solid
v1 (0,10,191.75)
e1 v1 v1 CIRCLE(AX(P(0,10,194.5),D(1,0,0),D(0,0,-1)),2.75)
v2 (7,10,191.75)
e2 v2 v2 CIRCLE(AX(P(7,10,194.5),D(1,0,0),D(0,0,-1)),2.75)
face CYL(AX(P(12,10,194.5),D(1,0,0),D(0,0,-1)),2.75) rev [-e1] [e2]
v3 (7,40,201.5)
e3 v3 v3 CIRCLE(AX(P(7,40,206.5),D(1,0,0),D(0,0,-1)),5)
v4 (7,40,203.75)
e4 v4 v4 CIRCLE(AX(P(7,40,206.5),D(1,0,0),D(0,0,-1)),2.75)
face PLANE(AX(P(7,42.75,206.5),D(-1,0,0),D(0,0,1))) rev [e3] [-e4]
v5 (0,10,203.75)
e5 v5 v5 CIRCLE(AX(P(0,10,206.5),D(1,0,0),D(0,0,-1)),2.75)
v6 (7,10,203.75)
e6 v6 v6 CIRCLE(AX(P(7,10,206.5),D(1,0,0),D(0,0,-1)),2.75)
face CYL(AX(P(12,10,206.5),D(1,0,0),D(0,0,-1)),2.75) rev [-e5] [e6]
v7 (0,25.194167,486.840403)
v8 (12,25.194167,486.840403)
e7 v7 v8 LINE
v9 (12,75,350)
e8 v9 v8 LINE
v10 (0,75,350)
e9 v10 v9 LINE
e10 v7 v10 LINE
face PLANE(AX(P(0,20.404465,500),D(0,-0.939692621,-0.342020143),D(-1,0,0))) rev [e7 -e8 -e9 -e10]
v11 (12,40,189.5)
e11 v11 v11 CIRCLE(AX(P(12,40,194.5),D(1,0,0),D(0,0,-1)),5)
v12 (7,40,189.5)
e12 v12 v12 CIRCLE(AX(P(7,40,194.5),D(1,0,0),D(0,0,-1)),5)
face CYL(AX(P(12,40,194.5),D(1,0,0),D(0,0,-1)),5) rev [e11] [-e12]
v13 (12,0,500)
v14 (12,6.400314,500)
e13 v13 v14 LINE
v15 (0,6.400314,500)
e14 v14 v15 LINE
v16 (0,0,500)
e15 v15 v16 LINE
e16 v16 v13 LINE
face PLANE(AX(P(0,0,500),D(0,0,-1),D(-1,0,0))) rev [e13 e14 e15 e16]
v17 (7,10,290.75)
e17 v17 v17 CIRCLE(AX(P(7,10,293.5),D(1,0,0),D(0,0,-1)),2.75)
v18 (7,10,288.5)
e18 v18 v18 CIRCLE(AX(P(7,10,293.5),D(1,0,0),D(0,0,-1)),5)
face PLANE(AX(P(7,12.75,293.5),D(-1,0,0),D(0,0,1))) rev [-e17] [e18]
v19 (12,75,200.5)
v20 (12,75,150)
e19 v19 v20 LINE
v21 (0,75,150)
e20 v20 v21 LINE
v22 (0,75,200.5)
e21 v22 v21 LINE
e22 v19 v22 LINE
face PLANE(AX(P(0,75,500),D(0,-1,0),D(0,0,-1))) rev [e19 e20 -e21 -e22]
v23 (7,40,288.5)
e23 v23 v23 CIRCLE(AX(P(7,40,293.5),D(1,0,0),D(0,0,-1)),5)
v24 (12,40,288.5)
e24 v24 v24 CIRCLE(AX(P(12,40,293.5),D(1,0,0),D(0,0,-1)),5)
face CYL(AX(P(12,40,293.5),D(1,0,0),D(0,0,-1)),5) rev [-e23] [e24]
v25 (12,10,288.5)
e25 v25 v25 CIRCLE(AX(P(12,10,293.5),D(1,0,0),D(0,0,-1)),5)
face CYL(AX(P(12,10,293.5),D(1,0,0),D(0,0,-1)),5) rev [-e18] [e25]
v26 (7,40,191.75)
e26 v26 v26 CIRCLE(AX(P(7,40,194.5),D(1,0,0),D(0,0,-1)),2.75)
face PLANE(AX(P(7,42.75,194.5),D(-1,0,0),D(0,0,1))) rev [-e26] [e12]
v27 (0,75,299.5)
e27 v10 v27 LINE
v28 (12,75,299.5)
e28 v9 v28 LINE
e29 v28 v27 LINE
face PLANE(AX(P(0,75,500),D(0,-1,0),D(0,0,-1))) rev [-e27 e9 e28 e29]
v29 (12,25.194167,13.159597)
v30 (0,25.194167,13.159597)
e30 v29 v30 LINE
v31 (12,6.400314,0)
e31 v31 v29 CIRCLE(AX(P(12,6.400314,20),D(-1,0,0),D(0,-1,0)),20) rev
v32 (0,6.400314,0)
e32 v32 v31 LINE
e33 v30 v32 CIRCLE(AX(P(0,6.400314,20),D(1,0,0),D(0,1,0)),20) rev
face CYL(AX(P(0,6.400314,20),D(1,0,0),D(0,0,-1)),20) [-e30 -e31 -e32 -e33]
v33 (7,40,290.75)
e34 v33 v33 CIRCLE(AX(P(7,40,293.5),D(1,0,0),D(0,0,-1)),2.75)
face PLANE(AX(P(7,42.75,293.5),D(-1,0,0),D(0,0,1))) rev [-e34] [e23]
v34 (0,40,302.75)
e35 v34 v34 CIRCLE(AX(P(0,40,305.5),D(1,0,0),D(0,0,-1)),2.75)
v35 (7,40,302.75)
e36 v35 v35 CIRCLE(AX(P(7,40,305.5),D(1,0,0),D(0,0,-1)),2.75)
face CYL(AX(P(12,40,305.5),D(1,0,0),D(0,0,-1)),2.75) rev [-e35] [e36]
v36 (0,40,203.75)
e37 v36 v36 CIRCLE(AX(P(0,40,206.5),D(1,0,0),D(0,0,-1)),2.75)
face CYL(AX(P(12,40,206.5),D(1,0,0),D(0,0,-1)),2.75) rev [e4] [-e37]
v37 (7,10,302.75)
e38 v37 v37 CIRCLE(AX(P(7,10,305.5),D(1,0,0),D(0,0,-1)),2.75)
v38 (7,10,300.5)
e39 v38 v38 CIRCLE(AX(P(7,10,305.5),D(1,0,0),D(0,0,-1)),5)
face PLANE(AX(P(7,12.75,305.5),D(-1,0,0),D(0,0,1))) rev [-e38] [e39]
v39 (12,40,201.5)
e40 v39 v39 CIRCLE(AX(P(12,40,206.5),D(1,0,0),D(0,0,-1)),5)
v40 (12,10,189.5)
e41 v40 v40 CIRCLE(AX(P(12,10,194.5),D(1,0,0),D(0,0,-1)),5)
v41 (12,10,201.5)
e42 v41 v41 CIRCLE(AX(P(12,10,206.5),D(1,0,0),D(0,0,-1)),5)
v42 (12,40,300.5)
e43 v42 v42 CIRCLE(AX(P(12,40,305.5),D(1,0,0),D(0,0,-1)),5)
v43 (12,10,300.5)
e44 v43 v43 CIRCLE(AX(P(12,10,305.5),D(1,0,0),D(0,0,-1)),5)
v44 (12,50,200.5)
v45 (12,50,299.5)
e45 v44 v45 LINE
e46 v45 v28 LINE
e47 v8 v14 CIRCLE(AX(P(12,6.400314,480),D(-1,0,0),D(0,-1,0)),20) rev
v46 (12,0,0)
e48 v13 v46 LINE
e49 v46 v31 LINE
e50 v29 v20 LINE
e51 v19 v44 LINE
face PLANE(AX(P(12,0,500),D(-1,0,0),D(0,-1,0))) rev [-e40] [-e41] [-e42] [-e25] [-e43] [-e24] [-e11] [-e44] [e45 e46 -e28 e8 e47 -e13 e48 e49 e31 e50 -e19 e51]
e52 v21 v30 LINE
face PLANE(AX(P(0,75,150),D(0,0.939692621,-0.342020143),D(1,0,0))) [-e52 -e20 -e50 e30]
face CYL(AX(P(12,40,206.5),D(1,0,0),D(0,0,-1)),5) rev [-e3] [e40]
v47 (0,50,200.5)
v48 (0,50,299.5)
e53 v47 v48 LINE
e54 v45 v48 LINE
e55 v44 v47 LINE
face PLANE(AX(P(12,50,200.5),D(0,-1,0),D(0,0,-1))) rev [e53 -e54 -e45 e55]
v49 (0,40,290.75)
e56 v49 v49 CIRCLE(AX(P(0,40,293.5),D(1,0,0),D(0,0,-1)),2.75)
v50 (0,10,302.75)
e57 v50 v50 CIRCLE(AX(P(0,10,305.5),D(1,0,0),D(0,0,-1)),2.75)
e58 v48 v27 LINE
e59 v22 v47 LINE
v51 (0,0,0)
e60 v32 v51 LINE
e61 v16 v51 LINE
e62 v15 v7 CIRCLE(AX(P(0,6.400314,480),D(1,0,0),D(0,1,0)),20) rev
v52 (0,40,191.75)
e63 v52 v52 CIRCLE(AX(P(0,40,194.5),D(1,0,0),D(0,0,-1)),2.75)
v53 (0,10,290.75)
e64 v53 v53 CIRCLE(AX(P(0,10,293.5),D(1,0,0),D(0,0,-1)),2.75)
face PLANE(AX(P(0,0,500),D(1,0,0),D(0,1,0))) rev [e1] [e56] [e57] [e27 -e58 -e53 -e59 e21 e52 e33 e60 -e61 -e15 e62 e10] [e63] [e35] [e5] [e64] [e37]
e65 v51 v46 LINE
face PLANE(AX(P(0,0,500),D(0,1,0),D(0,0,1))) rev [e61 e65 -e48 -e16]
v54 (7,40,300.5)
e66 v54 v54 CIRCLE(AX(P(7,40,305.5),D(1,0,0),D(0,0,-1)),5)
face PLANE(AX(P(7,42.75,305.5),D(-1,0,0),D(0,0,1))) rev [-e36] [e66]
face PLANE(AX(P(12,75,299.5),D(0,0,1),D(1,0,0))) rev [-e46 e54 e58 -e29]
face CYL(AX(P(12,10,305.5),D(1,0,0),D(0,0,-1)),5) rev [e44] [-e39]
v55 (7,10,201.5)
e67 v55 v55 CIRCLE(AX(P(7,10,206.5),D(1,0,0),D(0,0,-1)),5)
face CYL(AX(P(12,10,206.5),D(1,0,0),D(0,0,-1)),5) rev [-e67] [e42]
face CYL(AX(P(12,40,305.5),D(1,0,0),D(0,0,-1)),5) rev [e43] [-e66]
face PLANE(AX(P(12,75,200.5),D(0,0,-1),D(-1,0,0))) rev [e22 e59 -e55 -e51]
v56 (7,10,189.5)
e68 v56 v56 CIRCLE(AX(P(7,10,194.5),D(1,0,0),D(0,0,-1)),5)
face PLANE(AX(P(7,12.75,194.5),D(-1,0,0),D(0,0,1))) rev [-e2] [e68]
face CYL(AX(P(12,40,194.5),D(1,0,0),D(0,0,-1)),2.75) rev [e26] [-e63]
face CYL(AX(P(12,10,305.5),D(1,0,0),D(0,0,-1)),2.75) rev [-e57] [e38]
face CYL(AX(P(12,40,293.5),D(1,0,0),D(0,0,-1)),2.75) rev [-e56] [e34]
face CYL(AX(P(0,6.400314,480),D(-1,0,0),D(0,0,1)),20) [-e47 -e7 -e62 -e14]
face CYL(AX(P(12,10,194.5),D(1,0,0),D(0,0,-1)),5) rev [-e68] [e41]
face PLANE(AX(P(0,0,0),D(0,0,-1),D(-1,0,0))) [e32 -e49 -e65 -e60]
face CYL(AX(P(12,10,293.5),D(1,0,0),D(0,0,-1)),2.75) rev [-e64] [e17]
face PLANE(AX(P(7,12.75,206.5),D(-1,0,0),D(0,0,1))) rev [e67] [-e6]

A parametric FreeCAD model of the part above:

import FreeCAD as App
import Part
import Sketcher

V = App.Vector
Q = App.Units.Quantity


def edges_at(feature, points):
    """Names of the edges that pass closest to the given points."""
    edges = feature.Shape.Edges
    near = lambda p: min(range(len(edges)), key=lambda i: edges[i].distToShape(Part.Vertex(*p))[0])
    return sorted({f"Edge{near(p) + 1}" for p in points})

doc = App.newDocument("Part")
body = doc.addObject("PartDesign::Body", "Body")

# Sketch on XY plane
sketch1 = doc.addObject("Sketcher::SketchObject", "Sketch")
body.addObject(sketch1)
sketch1.AttachmentSupport = (doc.XY_Plane, [""])
sketch1.MapMode = "FlatFace"
sketch1.addGeometry([
    Part.LineSegment(V(0, 75, 0), V(0, 0, 0)),
    Part.LineSegment(V(0, 0, 0), V(12, 0, 0)),
    Part.LineSegment(V(12, 0, 0), V(12, 75, 0)),
    Part.LineSegment(V(12, 75, 0), V(0, 75, 0)),
], False)
sketch1.addConstraint([
    Sketcher.Constraint("Coincident", 0, 2, 1, 1),
    Sketcher.Constraint("Coincident", 1, 2, 2, 1),
    Sketcher.Constraint("Coincident", 2, 2, 3, 1),
    Sketcher.Constraint("Coincident", 3, 2, 0, 1),
    Sketcher.Constraint("Vertical", 0),
    Sketcher.Constraint("Horizontal", 1),
    Sketcher.Constraint("Vertical", 2),
    Sketcher.Constraint("Horizontal", 3),
    Sketcher.Constraint("Coincident", 0, 2, -1, 1),
    Sketcher.Constraint("DistanceX", 1, 1, 1, 2, Q("12 mm")),
    Sketcher.Constraint("DistanceY", 0, 2, 0, 1, Q("75 mm")),
])
pad1 = doc.addObject("PartDesign::Pad", "Pad")
body.addObject(pad1)
pad1.Profile = sketch1
pad1.Length = 500

# Sketch on YZ plane
sketch2 = doc.addObject("Sketcher::SketchObject", "Sketch001")
body.addObject(sketch2)
sketch2.AttachmentSupport = (doc.YZ_Plane, [""])
sketch2.MapMode = "FlatFace"
sketch2.addGeometry([
    Part.LineSegment(V(75, 200, 0), V(50, 200, 0)),
    Part.LineSegment(V(50, 200, 0), V(50, 300, 0)),
    Part.LineSegment(V(50, 300, 0), V(75, 300, 0)),
    Part.LineSegment(V(75, 300, 0), V(75, 200, 0)),
], False)
sketch2.addConstraint([
    Sketcher.Constraint("Coincident", 0, 2, 1, 1),
    Sketcher.Constraint("Coincident", 1, 2, 2, 1),
    Sketcher.Constraint("Coincident", 2, 2, 3, 1),
    Sketcher.Constraint("Coincident", 3, 2, 0, 1),
    Sketcher.Constraint("Horizontal", 0),
    Sketcher.Constraint("Vertical", 1),
    Sketcher.Constraint("Horizontal", 2),
    Sketcher.Constraint("Vertical", 3),
    Sketcher.Constraint("DistanceX", 0, 2, 0, 1, Q("25 mm")),
    Sketcher.Constraint("DistanceY", 1, 1, 1, 2, Q("99 mm")),
    Sketcher.Constraint("DistanceX", -1, 1, 0, 2, Q("50 mm")),
    Sketcher.Constraint("DistanceY", -1, 1, 0, 2, Q("200.5 mm")),
])
pocket1 = doc.addObject("PartDesign::Pocket", "Pocket")
body.addObject(pocket1)
pocket1.Profile = sketch2
pocket1.Type = "ThroughAll"
pocket1.Reversed = True

# Sketch on YZ plane
sketch3 = doc.addObject("Sketcher::SketchObject", "Sketch002")
body.addObject(sketch3)
sketch3.AttachmentSupport = (doc.YZ_Plane, [""])
sketch3.MapMode = "FlatFace"
sketch3.AttachmentOffset = App.Placement(V(0, 0, 12), App.Rotation())
sketch3.addGeometry([
    Part.Circle(V(40, 293.5, 0), V(0, 0, 1), 2.8),
    Part.Circle(V(10, 206.5, 0), V(0, 0, 1), 2.8),
    Part.Circle(V(10, 293.5, 0), V(0, 0, 1), 2.8),
    Part.Circle(V(40, 206.5, 0), V(0, 0, 1), 2.8),
], False)
sketch3.addConstraint([
    Sketcher.Constraint("Equal", 0, 1),
    Sketcher.Constraint("Equal", 1, 2),
    Sketcher.Constraint("Equal", 2, 3),
    Sketcher.Constraint("Horizontal", 0, 3, 2, 3),
    Sketcher.Constraint("Horizontal", 1, 3, 3, 3),
    Sketcher.Constraint("Vertical", 1, 3, 2, 3),
    Sketcher.Constraint("Vertical", 0, 3, 3, 3),
    Sketcher.Constraint("Diameter", 0, Q("5.5 mm")),
    Sketcher.Constraint("DistanceX", -1, 1, 0, 3, Q("40 mm")),
    Sketcher.Constraint("DistanceX", -1, 1, 1, 3, Q("10 mm")),
    Sketcher.Constraint("DistanceY", 1, 3, 0, 3, Q("87 mm")),
    Sketcher.Constraint("DistanceY", -1, 1, 0, 3, Q("293.5 mm")),
])
doc.recompute()
hole = doc.addObject("PartDesign::Hole", "Hole")
body.addObject(hole)
hole.Profile = sketch3
hole.ThreadType = "None"
hole.Diameter = 5.5
hole.DepthType = "ThroughAll"
hole.HoleCutType = "Counterbore"
hole.HoleCutDiameter = 10
hole.HoleCutDepth = 5
doc.recompute()

chamfer = doc.addObject("PartDesign::Chamfer", "Chamfer")
body.addObject(chamfer)
chamfer.Base = (hole, edges_at(hole, [(6, 75, 0)]))
chamfer.ChamferType = "Two distances"
chamfer.Size = 150
chamfer.Size2 = 54.595535
chamfer.FlipDirection = True
doc.recompute()

chamfer2 = doc.addObject("PartDesign::Chamfer", "Chamfer001")
body.addObject(chamfer2)
chamfer2.Base = (chamfer, edges_at(chamfer, [(6, 75, 500)]))
chamfer2.ChamferType = "Two distances"
chamfer2.Size = 150
chamfer2.Size2 = 54.595535
chamfer2.FlipDirection = True
doc.recompute()

fillet = doc.addObject("PartDesign::Fillet", "Fillet")
body.addObject(fillet)
fillet.Base = (chamfer2, edges_at(chamfer2, [(6, 20.404, 0), (6, 20.404, 500)]))
fillet.Radius = 20

# Sketch on YZ plane
sketch4 = doc.addObject("Sketcher::SketchObject", "Sketch003")
body.addObject(sketch4)
sketch4.AttachmentSupport = (doc.YZ_Plane, [""])
sketch4.MapMode = "FlatFace"
sketch4.AttachmentOffset = App.Placement(V(0, 0, 12), App.Rotation())
sketch4.addGeometry([
    Part.Circle(V(40, 305.5, 0), V(0, 0, 1), 2.8),
    Part.Circle(V(10, 305.5, 0), V(0, 0, 1), 2.8),
], False)
sketch4.addConstraint([
    Sketcher.Constraint("Equal", 0, 1),
    Sketcher.Constraint("Horizontal", 0, 3, 1, 3),
    Sketcher.Constraint("Diameter", 0, Q("5.5 mm")),
    Sketcher.Constraint("DistanceX", -1, 1, 0, 3, Q("40 mm")),
    Sketcher.Constraint("DistanceX", -1, 1, 1, 3, Q("10 mm")),
    Sketcher.Constraint("DistanceY", -1, 1, 0, 3, Q("305.5 mm")),
])
doc.recompute()
hole2 = doc.addObject("PartDesign::Hole", "Hole001")
body.addObject(hole2)
hole2.Profile = sketch4
hole2.ThreadType = "None"
hole2.Diameter = 5.5
hole2.DepthType = "ThroughAll"
hole2.HoleCutType = "Counterbore"
hole2.HoleCutDiameter = 10
hole2.HoleCutDepth = 5
doc.recompute()

datumplane = doc.addObject("PartDesign::Plane", "DatumPlane")
body.addObject(datumplane)
datumplane.AttachmentSupport = (doc.XY_Plane, [""])
datumplane.MapMode = "FlatFace"
datumplane.AttachmentOffset = App.Placement(V(0, 0, 250), App.Rotation())
mirrored = doc.addObject("PartDesign::Mirrored", "Mirrored")
body.addObject(mirrored)
mirrored.Originals = [hole2]
mirrored.MirrorPlane = (datumplane, [""])
body.Tip = mirrored

doc.recompute()
